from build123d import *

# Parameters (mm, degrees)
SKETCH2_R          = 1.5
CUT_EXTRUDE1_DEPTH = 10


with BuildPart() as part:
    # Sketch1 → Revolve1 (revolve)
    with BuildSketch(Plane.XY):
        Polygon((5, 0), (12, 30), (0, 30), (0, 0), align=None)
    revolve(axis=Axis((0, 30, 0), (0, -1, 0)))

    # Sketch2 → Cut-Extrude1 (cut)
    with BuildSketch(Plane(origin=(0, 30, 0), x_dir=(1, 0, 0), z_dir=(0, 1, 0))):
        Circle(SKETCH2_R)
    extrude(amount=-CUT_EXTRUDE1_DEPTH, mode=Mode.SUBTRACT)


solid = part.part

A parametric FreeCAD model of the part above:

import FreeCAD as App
import Part
import Sketcher
Q = App.Units.Quantity


def add_polygon(sketch, points):
    """Adds a closed chain of lines whose ends are joined by coincident constraints."""
    first, n = sketch.GeometryCount, len(points)
    for a, b in zip(points, points[1:] + points[:1]):
        sketch.addGeometry(Part.LineSegment(App.Vector(*a, 0), App.Vector(*b, 0)), False)
    for i in range(n):
        sketch.addConstraint(Sketcher.Constraint("Coincident", first + i, 2, first + (i + 1) % n, 1))

doc = App.newDocument("Part")
body = doc.addObject("PartDesign::Body", "Body")

sketch1 = body.newObject("Sketcher::SketchObject", "Sketch")
sketch1.AttachmentSupport = (doc.getObject("XY_Plane"), [""])
sketch1.MapMode = "FlatFace"
add_polygon(sketch1, [(5, 0), (12, 30), (0, 30), (0, 0)])
sketch1.addConstraint(Sketcher.Constraint("Horizontal", 1))
sketch1.addConstraint(Sketcher.Constraint("Vertical", 2))
sketch1.addConstraint(Sketcher.Constraint("Horizontal", 3))
sketch1.addConstraint(Sketcher.Constraint("Coincident", 2, 2, -1, 1))
sketch1.addConstraint(Sketcher.Constraint("DistanceX", 1, 2, 1, 1, Q("12 mm")))
sketch1.addConstraint(Sketcher.Constraint("DistanceX", 3, 1, 3, 2, Q("5 mm")))
sketch1.addConstraint(Sketcher.Constraint("DistanceY", 2, 2, 2, 1, Q("30 mm")))
revolution = body.newObject("PartDesign::Revolution", "Revolution")
revolution.Profile = sketch1
revolution.ReferenceAxis = (sketch1, ["V_Axis"])
revolution.Angle = 360

sketch2 = body.newObject("Sketcher::SketchObject", "Sketch001")
sketch2.AttachmentSupport = (doc.getObject("XZ_Plane"), [""])
sketch2.MapMode = "FlatFace"
sketch2.AttachmentOffset = App.Placement(App.Vector(0, 0, -30), App.Rotation())
sketch2.addGeometry(Part.Circle(App.Vector(0, 0, 0), App.Vector(0, 0, 1), 1.5), False)
sketch2.addConstraint(Sketcher.Constraint("Coincident", 0, 3, -1, 1))
sketch2.addConstraint(Sketcher.Constraint("Diameter", 0, Q("3 mm")))
pocket1 = body.newObject("PartDesign::Pocket", "Pocket")
pocket1.Profile = sketch2
pocket1.Length = 10
pocket1.Reversed = True

doc.recompute()
